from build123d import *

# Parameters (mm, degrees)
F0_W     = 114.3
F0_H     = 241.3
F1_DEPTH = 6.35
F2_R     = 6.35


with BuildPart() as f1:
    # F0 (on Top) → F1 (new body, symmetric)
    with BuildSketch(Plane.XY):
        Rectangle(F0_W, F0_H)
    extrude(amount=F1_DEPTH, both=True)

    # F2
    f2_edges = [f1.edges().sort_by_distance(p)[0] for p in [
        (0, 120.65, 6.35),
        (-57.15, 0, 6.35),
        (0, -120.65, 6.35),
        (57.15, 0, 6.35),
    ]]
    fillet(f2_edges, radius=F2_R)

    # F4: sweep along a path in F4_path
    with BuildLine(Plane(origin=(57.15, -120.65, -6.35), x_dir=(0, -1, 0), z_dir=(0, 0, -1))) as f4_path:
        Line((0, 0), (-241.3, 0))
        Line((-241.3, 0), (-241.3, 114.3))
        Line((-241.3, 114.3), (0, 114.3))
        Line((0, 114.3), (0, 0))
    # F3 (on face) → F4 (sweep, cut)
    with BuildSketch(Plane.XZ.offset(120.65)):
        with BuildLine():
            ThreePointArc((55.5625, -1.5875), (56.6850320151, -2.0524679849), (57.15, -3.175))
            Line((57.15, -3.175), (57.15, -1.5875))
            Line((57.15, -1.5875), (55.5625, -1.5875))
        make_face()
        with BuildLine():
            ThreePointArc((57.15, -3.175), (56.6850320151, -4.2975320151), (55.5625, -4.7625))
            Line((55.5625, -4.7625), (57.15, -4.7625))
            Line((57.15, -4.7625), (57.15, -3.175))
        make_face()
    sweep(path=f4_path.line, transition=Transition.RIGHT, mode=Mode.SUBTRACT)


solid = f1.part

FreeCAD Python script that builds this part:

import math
import FreeCAD as App
import Part
import Sketcher

V = App.Vector
Q = App.Units.Quantity


def edges_at(feature, points):
    """Names of the edges that pass closest to the given points."""
    edges = feature.Shape.Edges
    near = lambda p: min(range(len(edges)), key=lambda i: edges[i].distToShape(Part.Vertex(*p))[0])
    return sorted({f"Edge{near(p) + 1}" for p in points})


def add_polygon(sketch, points):
    """Adds a closed chain of lines whose ends are joined by coincident constraints."""
    first, n = sketch.GeometryCount, len(points)
    for a, b in zip(points, points[1:] + points[:1]):
        sketch.addGeometry(Part.LineSegment(App.Vector(*a, 0), App.Vector(*b, 0)), False)
    for i in range(n):
        sketch.addConstraint(Sketcher.Constraint("Coincident", first + i, 2, first + (i + 1) % n, 1))

doc = App.newDocument("Part")
body = doc.addObject("PartDesign::Body", "Body")

# Sketch on XY plane
sketch1 = body.newObject("Sketcher::SketchObject", "Sketch")
sketch1.AttachmentSupport = (doc.getObject("XY_Plane"), [""])
sketch1.MapMode = "FlatFace"
add_polygon(sketch1, [(-57, 121), (-57, -121), (57, -121), (57, 121)])  # lines 0-3
sketch1.addConstraint([
    Sketcher.Constraint("Vertical", 0),
    Sketcher.Constraint("Horizontal", 1),
    Sketcher.Constraint("Vertical", 2),
    Sketcher.Constraint("Horizontal", 3),
    Sketcher.Constraint("Symmetric", 0, 2, 2, 2, -1, 1),
    Sketcher.Constraint("DistanceX", 1, 1, 1, 2, Q("4.5 in")),
    Sketcher.Constraint("DistanceY", 0, 2, 0, 1, Q("9.5 in")),
])
pad1 = body.newObject("PartDesign::Pad", "Pad")
pad1.Profile = sketch1
pad1.Length = Q("0.5 in")
pad1.Midplane = True
doc.recompute()

fillet = body.newObject("PartDesign::Fillet", "Fillet")
fillet.Base = (pad1, edges_at(pad1, [
    (0, 120.65, 6.35),
    (-57.15, 0, 6.35),
    (0, -120.65, 6.35),
    (57.15, 0, 6.35),
]))
fillet.Radius = Q("0.25 in")

# Sketch on XZ plane
sketch2 = body.newObject("Sketcher::SketchObject", "Sketch001")
sketch2.AttachmentSupport = (doc.getObject("XZ_Plane"), [""])
sketch2.MapMode = "FlatFace"
sketch2.AttachmentOffset = App.Placement(V(0, 0, 4.75 * 25.4), App.Rotation())
sketch2.addGeometry([
    Part.ArcOfCircle(Part.Circle(V(55.6, -3.2, 0), V(0, 0, 1), 1.6), math.radians(0), math.radians(90)),  # 0
    Part.LineSegment(V(57.1, -3.2, 0), V(57.1, -1.6, 0)),  # 1
    Part.LineSegment(V(57.1, -1.6, 0), V(55.6, -1.6, 0)),  # 2
    Part.ArcOfCircle(Part.Circle(V(55.6, -3.2, 0), V(0, 0, 1), 1.6), math.radians(-90), math.radians(0)),  # 3
    Part.LineSegment(V(55.6, -4.8, 0), V(57.1, -4.8, 0)),  # 4
    Part.LineSegment(V(57.1, -4.8, 0), V(57.1, -3.2, 0)),  # 5
], False)
sketch2.addConstraint([
    Sketcher.Constraint("Tangent", 0, 1, 1, 1),
    Sketcher.Constraint("Coincident", 1, 2, 2, 1),
    Sketcher.Constraint("Tangent", 2, 2, 0, 2),
    Sketcher.Constraint("Tangent", 3, 1, 4, 1),
    Sketcher.Constraint("Coincident", 4, 2, 5, 1),
    Sketcher.Constraint("Tangent", 5, 2, 3, 2),
    Sketcher.Constraint("Vertical", 1),
    Sketcher.Constraint("Horizontal", 2),
    Sketcher.Constraint("Horizontal", 4),
    Sketcher.Constraint("Vertical", 5),
    Sketcher.Constraint("Coincident", 3, 3, 0, 3),
    Sketcher.Constraint("Equal", 0, 3),
    Sketcher.Constraint("Radius", 0, Q("0.0625 in")),
    Sketcher.Constraint("DistanceX", -1, 1, 0, 1, Q("2.25 in")),
    Sketcher.Constraint("DistanceY", 0, 3, -1, 1, Q("0.125 in")),
])

# Sketch on XY plane
sketch3 = body.newObject("Sketcher::SketchObject", "Sketch002")
sketch3.AttachmentSupport = (doc.getObject("XY_Plane"), [""])
sketch3.MapMode = "FlatFace"
sketch3.AttachmentOffset = App.Placement(V(0, 0, -0.25 * 25.4), App.Rotation())
add_polygon(sketch3, [(57, -121), (57, 121), (-57, 121), (-57, -121)])  # lines 0-3
sketch3.addConstraint([
    Sketcher.Constraint("Vertical", 0),
    Sketcher.Constraint("Horizontal", 1),
    Sketcher.Constraint("Vertical", 2),
    Sketcher.Constraint("Horizontal", 3),
    Sketcher.Constraint("Symmetric", 0, 2, 2, 2, -1, 1),
    Sketcher.Constraint("DistanceX", 1, 2, 1, 1, Q("4.5 in")),
    Sketcher.Constraint("DistanceY", 0, 1, 0, 2, Q("9.5 in")),
])
doc.recompute()

subtractivepipe = body.newObject("PartDesign::SubtractivePipe", "SubtractivePipe")
subtractivepipe.Profile = sketch2
subtractivepipe.Spine = (sketch3, ["Edge1", "Edge2", "Edge3", "Edge4"])
subtractivepipe.Transition = "Right corner"

doc.recompute()
